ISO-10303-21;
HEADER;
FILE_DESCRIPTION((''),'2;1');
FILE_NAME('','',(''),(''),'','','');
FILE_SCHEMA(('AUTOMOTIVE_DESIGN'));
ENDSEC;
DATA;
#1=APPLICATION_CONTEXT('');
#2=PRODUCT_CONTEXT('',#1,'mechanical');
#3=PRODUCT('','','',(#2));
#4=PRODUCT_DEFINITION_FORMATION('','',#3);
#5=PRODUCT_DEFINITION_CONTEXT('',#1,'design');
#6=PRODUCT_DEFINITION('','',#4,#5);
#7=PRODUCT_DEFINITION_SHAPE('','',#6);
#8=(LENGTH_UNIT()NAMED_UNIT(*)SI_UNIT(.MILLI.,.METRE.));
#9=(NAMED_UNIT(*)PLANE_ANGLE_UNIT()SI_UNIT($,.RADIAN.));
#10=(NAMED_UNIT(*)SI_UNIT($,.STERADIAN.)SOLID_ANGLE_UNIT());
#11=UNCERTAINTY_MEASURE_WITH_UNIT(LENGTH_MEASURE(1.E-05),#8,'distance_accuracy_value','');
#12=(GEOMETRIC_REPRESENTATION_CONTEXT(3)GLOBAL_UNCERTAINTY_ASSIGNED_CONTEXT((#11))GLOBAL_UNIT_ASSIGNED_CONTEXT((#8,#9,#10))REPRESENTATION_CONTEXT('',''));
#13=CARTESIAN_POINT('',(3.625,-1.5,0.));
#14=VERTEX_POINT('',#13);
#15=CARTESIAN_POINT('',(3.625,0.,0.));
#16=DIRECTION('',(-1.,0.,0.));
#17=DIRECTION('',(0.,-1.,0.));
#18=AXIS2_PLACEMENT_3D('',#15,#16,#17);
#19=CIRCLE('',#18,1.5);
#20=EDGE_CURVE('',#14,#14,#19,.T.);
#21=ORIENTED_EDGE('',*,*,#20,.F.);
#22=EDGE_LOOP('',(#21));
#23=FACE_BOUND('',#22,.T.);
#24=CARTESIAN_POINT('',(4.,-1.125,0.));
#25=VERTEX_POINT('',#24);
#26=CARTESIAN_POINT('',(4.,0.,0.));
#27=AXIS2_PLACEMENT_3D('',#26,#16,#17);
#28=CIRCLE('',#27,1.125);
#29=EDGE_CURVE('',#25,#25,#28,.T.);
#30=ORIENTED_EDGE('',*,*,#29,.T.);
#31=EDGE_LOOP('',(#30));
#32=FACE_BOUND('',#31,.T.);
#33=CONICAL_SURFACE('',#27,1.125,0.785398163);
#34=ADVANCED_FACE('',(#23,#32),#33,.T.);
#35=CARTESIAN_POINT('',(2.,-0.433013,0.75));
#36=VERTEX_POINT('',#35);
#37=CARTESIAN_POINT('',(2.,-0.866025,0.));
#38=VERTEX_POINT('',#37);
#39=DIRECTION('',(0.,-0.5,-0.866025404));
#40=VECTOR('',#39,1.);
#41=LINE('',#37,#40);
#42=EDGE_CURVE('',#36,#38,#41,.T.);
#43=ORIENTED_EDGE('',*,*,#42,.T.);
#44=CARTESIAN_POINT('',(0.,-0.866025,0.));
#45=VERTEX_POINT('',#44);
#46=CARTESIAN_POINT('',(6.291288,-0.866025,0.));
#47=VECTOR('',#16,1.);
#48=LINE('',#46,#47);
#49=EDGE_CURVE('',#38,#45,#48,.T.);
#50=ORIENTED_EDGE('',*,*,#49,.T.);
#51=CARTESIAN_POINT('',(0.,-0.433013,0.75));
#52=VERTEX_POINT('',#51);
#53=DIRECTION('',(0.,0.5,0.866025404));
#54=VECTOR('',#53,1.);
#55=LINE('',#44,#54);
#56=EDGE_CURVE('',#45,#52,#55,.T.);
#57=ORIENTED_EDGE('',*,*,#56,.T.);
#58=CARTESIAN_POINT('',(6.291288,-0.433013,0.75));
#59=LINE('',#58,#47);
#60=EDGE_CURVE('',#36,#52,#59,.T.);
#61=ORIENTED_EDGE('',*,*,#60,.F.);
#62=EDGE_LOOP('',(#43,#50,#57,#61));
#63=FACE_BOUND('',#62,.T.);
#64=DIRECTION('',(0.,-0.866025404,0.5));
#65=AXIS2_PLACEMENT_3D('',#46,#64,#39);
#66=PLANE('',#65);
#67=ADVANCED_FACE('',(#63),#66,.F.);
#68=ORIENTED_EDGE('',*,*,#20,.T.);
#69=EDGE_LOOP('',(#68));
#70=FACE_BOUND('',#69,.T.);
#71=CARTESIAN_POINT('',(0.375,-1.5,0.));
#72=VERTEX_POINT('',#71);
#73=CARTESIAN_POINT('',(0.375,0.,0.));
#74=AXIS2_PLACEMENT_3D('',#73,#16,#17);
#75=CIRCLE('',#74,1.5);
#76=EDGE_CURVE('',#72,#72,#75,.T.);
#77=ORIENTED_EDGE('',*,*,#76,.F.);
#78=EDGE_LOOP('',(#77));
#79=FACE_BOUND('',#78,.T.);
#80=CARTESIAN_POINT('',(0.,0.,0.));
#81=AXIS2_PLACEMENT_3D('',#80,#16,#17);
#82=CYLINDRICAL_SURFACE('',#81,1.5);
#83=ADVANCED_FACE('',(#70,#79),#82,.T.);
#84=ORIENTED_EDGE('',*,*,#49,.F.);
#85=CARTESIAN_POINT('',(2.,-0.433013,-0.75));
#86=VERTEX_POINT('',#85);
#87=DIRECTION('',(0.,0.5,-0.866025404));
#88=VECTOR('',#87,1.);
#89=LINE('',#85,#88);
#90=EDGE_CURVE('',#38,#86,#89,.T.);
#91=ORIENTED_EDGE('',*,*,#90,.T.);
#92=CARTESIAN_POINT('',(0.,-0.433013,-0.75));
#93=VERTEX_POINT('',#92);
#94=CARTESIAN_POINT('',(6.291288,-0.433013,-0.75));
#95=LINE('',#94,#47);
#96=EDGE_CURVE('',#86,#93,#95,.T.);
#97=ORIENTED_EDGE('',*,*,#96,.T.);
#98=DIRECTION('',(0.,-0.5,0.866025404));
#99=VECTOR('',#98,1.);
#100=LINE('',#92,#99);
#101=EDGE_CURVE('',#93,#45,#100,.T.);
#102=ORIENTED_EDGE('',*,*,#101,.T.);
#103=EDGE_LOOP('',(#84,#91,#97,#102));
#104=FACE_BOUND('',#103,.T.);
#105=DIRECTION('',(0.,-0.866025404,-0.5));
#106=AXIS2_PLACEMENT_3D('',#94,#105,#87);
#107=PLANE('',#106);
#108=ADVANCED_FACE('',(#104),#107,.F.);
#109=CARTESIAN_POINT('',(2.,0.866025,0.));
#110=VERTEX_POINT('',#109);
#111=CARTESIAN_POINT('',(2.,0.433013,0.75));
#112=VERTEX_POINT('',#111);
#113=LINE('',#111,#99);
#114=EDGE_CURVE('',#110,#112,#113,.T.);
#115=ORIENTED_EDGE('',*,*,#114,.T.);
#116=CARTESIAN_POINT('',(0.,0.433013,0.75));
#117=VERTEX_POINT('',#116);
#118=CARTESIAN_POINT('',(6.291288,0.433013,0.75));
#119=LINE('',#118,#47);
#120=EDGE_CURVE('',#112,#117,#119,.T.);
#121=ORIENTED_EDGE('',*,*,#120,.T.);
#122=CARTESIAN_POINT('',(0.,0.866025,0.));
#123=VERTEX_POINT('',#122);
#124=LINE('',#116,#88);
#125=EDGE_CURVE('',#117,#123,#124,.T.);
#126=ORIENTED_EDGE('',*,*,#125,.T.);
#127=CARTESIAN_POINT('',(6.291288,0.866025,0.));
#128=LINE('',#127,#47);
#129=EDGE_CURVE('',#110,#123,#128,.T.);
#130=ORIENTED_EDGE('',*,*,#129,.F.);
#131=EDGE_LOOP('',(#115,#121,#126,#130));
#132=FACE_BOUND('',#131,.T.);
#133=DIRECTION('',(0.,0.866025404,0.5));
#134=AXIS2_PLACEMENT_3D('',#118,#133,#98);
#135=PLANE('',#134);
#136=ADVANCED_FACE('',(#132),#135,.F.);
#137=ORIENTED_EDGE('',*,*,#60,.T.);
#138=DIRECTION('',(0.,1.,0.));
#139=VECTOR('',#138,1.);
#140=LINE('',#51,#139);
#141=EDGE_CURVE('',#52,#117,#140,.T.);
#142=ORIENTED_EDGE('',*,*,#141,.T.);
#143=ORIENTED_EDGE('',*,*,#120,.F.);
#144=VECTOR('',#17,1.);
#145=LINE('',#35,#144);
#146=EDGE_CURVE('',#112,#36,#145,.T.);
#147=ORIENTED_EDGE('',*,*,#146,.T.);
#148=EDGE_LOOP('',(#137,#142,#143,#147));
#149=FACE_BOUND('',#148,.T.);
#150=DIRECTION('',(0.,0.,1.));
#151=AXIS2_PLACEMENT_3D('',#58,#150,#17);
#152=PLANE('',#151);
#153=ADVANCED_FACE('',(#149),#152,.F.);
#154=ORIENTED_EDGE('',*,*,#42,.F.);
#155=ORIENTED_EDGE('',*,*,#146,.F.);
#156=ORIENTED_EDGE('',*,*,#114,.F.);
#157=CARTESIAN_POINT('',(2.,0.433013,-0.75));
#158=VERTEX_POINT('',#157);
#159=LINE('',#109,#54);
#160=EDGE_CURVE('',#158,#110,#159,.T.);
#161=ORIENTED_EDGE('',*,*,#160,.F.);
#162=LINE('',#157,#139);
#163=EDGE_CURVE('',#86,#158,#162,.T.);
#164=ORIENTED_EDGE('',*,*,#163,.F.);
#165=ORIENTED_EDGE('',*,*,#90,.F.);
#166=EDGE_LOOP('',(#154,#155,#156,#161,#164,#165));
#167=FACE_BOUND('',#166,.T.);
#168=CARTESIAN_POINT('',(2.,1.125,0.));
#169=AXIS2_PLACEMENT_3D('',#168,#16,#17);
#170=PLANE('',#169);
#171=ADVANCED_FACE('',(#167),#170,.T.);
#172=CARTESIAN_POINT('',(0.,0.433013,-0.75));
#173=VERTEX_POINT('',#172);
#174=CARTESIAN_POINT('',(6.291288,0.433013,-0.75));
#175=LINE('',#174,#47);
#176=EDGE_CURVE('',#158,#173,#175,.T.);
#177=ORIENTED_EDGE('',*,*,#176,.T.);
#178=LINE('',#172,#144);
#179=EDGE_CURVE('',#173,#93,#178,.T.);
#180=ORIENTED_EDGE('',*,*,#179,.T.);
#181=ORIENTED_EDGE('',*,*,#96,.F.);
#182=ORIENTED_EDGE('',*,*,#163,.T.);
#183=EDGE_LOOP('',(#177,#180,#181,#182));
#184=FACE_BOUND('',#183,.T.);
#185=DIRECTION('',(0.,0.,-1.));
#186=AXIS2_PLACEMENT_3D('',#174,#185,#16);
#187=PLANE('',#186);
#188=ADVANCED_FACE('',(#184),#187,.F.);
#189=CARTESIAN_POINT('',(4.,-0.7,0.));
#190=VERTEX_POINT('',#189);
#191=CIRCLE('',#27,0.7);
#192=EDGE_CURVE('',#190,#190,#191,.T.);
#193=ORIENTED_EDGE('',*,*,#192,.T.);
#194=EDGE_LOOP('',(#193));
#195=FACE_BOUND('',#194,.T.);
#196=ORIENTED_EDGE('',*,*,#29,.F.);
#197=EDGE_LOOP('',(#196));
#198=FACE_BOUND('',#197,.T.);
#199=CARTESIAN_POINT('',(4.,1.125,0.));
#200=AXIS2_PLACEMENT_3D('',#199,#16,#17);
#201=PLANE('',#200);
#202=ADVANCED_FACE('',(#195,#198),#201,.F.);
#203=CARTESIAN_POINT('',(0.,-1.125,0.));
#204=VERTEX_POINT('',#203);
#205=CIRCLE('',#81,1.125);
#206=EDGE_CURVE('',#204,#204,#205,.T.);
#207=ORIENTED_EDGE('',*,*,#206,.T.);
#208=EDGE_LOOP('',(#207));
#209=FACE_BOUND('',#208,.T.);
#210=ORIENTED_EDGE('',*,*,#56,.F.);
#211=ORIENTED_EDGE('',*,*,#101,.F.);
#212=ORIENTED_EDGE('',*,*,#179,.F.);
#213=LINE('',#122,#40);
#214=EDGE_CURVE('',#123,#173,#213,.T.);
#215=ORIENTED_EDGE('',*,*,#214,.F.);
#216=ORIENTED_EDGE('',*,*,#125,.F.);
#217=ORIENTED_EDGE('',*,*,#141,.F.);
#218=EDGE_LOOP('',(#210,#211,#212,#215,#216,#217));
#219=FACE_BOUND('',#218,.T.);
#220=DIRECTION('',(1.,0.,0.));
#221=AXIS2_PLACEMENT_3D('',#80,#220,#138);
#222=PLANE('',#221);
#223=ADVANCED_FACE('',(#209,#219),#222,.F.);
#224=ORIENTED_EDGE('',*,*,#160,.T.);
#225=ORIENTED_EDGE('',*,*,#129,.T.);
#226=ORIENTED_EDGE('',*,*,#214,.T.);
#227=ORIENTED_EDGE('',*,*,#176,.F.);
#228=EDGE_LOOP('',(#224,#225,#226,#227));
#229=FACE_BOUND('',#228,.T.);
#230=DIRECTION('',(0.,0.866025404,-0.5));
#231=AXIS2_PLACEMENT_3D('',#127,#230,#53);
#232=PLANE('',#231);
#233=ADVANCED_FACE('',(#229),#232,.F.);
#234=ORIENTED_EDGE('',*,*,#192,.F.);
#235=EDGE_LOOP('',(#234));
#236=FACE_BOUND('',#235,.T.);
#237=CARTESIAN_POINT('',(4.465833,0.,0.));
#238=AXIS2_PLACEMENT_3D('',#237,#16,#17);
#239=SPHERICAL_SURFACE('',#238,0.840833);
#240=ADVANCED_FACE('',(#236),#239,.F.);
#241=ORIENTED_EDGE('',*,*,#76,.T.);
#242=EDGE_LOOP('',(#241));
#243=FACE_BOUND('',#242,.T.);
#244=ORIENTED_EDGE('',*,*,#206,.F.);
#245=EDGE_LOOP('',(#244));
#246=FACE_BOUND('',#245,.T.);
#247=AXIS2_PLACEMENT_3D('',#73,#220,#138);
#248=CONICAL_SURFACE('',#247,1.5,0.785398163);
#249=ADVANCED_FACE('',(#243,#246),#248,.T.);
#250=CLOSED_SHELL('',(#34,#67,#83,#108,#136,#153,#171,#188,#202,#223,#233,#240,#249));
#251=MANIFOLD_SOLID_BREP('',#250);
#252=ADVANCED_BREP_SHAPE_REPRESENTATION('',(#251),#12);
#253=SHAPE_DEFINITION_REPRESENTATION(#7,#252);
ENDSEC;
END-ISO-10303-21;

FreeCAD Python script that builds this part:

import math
import FreeCAD as App
import Part
import Sketcher

V = App.Vector
Q = App.Units.Quantity

doc = App.newDocument("Part")
params = doc.addObject("Spreadsheet::Sheet", "Params")
for row, (alias, value) in enumerate([
    ("sketch1_width", "3.25 mm"),
    ("revolution_angle", "360 deg"),
    ("pocket1_length", "2 mm"),
], start=1):
    params.set(f"A{row}", alias)
    params.set(f"B{row}", "=" + value)
    params.setAlias(f"B{row}", alias)

body = doc.addObject("PartDesign::Body", "Body")

sketch1 = body.newObject("Sketcher::SketchObject", "Sketch")
sketch1.AttachmentSupport = (doc.getObject("XY_Plane"), [""])
sketch1.MapMode = "FlatFace"
sketch1.addGeometry([
    Part.LineSegment(V(0, 1.12, 0), V(0, 0, 0)),
    Part.LineSegment(V(0, 0, 0), V(3.62, 0, 0)),
    Part.ArcOfCircle(Part.Circle(V(4.47, 0, 0), V(0, 0, 1), 0.84), math.radians(124), math.radians(180)),
    Part.LineSegment(V(4, 0.7, 0), V(4, 1.12, 0)),
    Part.LineSegment(V(4, 1.12, 0), V(3.62, 1.5, 0)),
    Part.LineSegment(V(3.62, 1.5, 0), V(0.38, 1.5, 0)),
    Part.LineSegment(V(0.38, 1.5, 0), V(0, 1.12, 0)),
], False)
sketch1.addConstraint([
    Sketcher.Constraint("Coincident", 0, 2, 1, 1),
    Sketcher.Constraint("Coincident", 1, 2, 2, 2),
    Sketcher.Constraint("Coincident", 2, 1, 3, 1),
    Sketcher.Constraint("Coincident", 3, 2, 4, 1),
    Sketcher.Constraint("Coincident", 4, 2, 5, 1),
    Sketcher.Constraint("Coincident", 5, 2, 6, 1),
    Sketcher.Constraint("Coincident", 6, 2, 0, 1),
    Sketcher.Constraint("Vertical", 0),
    Sketcher.Constraint("Horizontal", 1),
    Sketcher.Constraint("Vertical", 3),
    Sketcher.Constraint("Horizontal", 5),
    Sketcher.Constraint("Coincident", 0, 2, -1, 1),
    Sketcher.Constraint("PointOnObject", 2, 3, -1),
    Sketcher.Constraint("Perpendicular", 4, 6),
    Sketcher.Constraint("Horizontal", 3, 2, 6, 2),
    Sketcher.Constraint("Vertical", 1, 2, 4, 2),
    Sketcher.Constraint("Equal", 4, 6),
    Sketcher.Constraint("DistanceX", -1, 1, 2, 1, 4.0),
    Sketcher.Constraint("DistanceX", 5, 2, 5, 1, 3.25),
    Sketcher.Constraint("DistanceY", -1, 1, 2, 1, 0.7),
    Sketcher.Constraint("DistanceY", -1, 1, 4, 2, 1.5),
])
sketch1.setExpression("Constraints[18]", "Params.sketch1_width")
revolution = body.newObject("PartDesign::Revolution", "Revolution")
revolution.Profile = sketch1
revolution.ReferenceAxis = (sketch1, ["H_Axis"])
revolution.setExpression("Angle", "Params.revolution_angle")

sketch2 = body.newObject("Sketcher::SketchObject", "Sketch001")
sketch2.AttachmentSupport = (doc.getObject("YZ_Plane"), [""])
sketch2.MapMode = "FlatFace"
sketch2.addGeometry([
    Part.LineSegment(V(0.9, 0, 0), V(0.4, -0.8, 0)),
    Part.LineSegment(V(0.4, -0.8, 0), V(-0.4, -0.8, 0)),
    Part.LineSegment(V(-0.4, -0.8, 0), V(-0.9, 0, 0)),
    Part.LineSegment(V(-0.9, 0, 0), V(-0.4, 0.8, 0)),
    Part.LineSegment(V(-0.4, 0.8, 0), V(0.4, 0.8, 0)),
    Part.LineSegment(V(0.4, 0.8, 0), V(0.9, 0, 0)),
], False)
sketch2.addConstraint([
    Sketcher.Constraint("Coincident", 0, 2, 1, 1),
    Sketcher.Constraint("Coincident", 1, 2, 2, 1),
    Sketcher.Constraint("Coincident", 2, 2, 3, 1),
    Sketcher.Constraint("Coincident", 3, 2, 4, 1),
    Sketcher.Constraint("Coincident", 4, 2, 5, 1),
    Sketcher.Constraint("Coincident", 5, 2, 0, 1),
    Sketcher.Constraint("Horizontal", 1),
    Sketcher.Constraint("Horizontal", 4),
    Sketcher.Constraint("Symmetric", 0, 2, 3, 2, -1, 1),
    Sketcher.Constraint("Symmetric", 2, 2, 5, 2, -1, 1),
    Sketcher.Constraint("PointOnObject", 2, 2, -1),
    Sketcher.Constraint("Parallel", 2, 5),
    Sketcher.Constraint("Vertical", 1, 2, 3, 2),
    Sketcher.Constraint("Angle", 0, Q("-120 deg")),
    Sketcher.Constraint("DistanceY", 1, 2, 3, 2, 1.5),
    Sketcher.Constraint("DistanceX", 1, 2, 1, 1, 0.866025),
])
pocket1 = body.newObject("PartDesign::Pocket", "Pocket")
pocket1.Profile = sketch2
pocket1.setExpression("Length", "Params.pocket1_length")
pocket1.Reversed = True

doc.recompute()
